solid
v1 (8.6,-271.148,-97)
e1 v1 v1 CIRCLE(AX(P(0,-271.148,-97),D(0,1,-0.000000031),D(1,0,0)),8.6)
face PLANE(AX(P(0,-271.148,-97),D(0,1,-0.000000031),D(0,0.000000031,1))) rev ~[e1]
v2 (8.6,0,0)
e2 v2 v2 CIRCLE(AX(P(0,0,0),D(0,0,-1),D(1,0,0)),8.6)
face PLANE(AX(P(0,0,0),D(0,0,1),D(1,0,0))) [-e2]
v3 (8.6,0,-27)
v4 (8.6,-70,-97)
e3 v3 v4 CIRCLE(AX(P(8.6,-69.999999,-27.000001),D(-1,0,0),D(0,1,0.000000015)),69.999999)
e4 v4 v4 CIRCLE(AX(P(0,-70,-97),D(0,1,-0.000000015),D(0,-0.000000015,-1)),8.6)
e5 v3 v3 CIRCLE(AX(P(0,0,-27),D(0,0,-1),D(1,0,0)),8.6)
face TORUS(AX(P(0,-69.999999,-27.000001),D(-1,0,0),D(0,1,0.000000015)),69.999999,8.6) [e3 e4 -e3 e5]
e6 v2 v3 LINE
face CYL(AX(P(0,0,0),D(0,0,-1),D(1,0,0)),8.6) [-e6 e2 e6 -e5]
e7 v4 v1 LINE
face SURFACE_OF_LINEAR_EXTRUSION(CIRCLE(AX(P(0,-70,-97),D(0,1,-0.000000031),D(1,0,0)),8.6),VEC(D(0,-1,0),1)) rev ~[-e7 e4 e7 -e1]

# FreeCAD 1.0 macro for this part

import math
import FreeCAD as App
import Part
import Sketcher

V = App.Vector
Q = App.Units.Quantity

doc = App.newDocument("Part")
body = doc.addObject("PartDesign::Body", "Body")

# Sketch on XY plane
sketch1 = body.newObject("Sketcher::SketchObject", "Sketch")
sketch1.AttachmentSupport = (doc.getObject("XY_Plane"), [""])
sketch1.MapMode = "FlatFace"
sketch1.addGeometry(Part.Circle(V(0, 0, 0), V(0, 0, 1), 8.6), False)
sketch1.addConstraint(Sketcher.Constraint("Coincident", 0, 3, -1, 1))
sketch1.addConstraint(Sketcher.Constraint("Diameter", 0, Q("17.2 mm")))

# Sketch on YZ plane
sketch2 = body.newObject("Sketcher::SketchObject", "Sketch001")
sketch2.AttachmentSupport = (doc.getObject("YZ_Plane"), [""])
sketch2.MapMode = "FlatFace"
sketch2.addGeometry(Part.LineSegment(V(0, 0, 0), V(0, -27, 0)), False)
sketch2.addGeometry(Part.ArcOfCircle(Part.Circle(V(-69.999999, -27.000001, 0), V(0, 0, 1), 69.999999), math.radians(-90.000001), math.radians(0.000001)), False)
sketch2.addGeometry(Part.LineSegment(V(-70, -97, 0), V(-271.148, -97, 0)), False)
sketch2.addConstraint(Sketcher.Constraint("Tangent", 0, 2, 1, 2))
sketch2.addConstraint(Sketcher.Constraint("Tangent", 1, 1, 2, 1))
sketch2.addConstraint(Sketcher.Constraint("Vertical", 0))
sketch2.addConstraint(Sketcher.Constraint("Horizontal", 2))
sketch2.addConstraint(Sketcher.Constraint("Coincident", 0, 1, -1, 1))
sketch2.addConstraint(Sketcher.Constraint("Radius", 1, Q("69.999999 mm")))
sketch2.addConstraint(Sketcher.Constraint("DistanceY", 0, 2, 0, 1, Q("27 mm")))
sketch2.addConstraint(Sketcher.Constraint("DistanceX", 2, 2, 2, 1, Q("201.148 mm")))
doc.recompute()

additivepipe = body.newObject("PartDesign::AdditivePipe", "AdditivePipe")
additivepipe.Profile = sketch1
additivepipe.Spine = (sketch2, ["Edge1", "Edge2", "Edge3"])

doc.recompute()
